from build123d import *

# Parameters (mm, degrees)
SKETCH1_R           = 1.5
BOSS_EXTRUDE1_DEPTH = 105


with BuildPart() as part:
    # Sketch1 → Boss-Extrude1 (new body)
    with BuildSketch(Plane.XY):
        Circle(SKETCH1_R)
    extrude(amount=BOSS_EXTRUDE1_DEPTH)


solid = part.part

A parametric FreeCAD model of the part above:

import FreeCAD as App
import Part
import Sketcher

V = App.Vector

doc = App.newDocument("Part")
body = doc.addObject("PartDesign::Body", "Body")

sketch1 = doc.addObject("Sketcher::SketchObject", "Sketch")
body.addObject(sketch1)
sketch1.AttachmentSupport = (doc.XY_Plane, [""])
sketch1.MapMode = "FlatFace"
sketch1.addGeometry(Part.Circle(V(0, 0, 0), V(0, 0, 1), 1.5), False)
sketch1.addConstraint([
    Sketcher.Constraint("Coincident", 0, 3, -1, 1),
    Sketcher.Constraint("Diameter", 0, 3.0),
])
pad1 = doc.addObject("PartDesign::Pad", "Pad")
body.addObject(pad1)
pad1.Profile = sketch1
pad1.Length = 105

doc.recompute()
